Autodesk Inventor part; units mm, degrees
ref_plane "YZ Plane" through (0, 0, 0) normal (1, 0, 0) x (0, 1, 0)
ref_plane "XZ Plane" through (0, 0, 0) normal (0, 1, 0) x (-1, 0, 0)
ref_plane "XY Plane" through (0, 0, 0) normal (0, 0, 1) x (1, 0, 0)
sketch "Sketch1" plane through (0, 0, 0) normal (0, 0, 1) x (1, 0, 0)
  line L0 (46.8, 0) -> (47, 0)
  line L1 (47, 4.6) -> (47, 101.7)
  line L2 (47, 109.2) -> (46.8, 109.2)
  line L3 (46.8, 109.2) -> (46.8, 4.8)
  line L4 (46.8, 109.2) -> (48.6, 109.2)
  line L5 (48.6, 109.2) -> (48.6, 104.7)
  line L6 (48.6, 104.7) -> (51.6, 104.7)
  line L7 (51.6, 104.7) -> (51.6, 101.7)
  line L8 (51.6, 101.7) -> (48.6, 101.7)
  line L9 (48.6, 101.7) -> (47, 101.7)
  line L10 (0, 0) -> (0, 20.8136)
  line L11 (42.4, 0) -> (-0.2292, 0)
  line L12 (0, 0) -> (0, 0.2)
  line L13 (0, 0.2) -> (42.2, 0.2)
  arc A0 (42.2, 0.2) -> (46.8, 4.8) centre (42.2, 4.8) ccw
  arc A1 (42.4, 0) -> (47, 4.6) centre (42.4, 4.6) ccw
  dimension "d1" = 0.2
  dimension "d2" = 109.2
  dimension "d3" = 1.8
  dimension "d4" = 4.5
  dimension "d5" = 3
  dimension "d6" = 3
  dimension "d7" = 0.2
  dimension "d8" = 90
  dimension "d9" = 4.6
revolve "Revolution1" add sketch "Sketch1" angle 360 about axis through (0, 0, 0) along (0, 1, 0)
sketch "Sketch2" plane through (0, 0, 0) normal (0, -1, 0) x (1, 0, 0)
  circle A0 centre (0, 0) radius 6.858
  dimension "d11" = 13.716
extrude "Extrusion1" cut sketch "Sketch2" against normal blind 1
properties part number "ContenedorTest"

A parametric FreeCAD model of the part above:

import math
import FreeCAD as App
import Part
import Sketcher

V = App.Vector
Q = App.Units.Quantity

doc = App.newDocument("Part")
body = doc.addObject("PartDesign::Body", "Body")

sketch1 = body.newObject("Sketcher::SketchObject", "Sketch")
sketch1.AttachmentSupport = (doc.getObject("XY_Plane"), [""])
sketch1.MapMode = "FlatFace"
sketch1.addGeometry([
    Part.ArcOfCircle(Part.Circle(V(42.4, 4.6, 0), V(0, 0, 1), 4.6), math.radians(-90), math.radians(0)),
    Part.LineSegment(V(47, 4.6, 0), V(47, 101.7, 0)),
    Part.LineSegment(V(47, 101.7, 0), V(51.6, 101.7, 0)),
    Part.LineSegment(V(51.6, 101.7, 0), V(51.6, 104.7, 0)),
    Part.LineSegment(V(51.6, 104.7, 0), V(48.6, 104.7, 0)),
    Part.LineSegment(V(48.6, 104.7, 0), V(48.6, 109.2, 0)),
    Part.LineSegment(V(48.6, 109.2, 0), V(46.8, 109.2, 0)),
    Part.LineSegment(V(46.8, 109.2, 0), V(46.8, 4.8, 0)),
    Part.ArcOfCircle(Part.Circle(V(42.2, 4.8, 0), V(0, 0, 1), 4.6), math.radians(-90), math.radians(0)),
    Part.LineSegment(V(42.2, 0.2, 0), V(0, 0.2, 0)),
    Part.LineSegment(V(0, 0.2, 0), V(0, 0, 0)),
    Part.LineSegment(V(0, 0, 0), V(42.4, 0, 0)),
], False)
sketch1.addConstraint([
    Sketcher.Constraint("Tangent", 0, 2, 1, 1),
    Sketcher.Constraint("Coincident", 1, 2, 2, 1),
    Sketcher.Constraint("Coincident", 2, 2, 3, 1),
    Sketcher.Constraint("Coincident", 3, 2, 4, 1),
    Sketcher.Constraint("Coincident", 4, 2, 5, 1),
    Sketcher.Constraint("Coincident", 5, 2, 6, 1),
    Sketcher.Constraint("Coincident", 6, 2, 7, 1),
    Sketcher.Constraint("Tangent", 7, 2, 8, 2),
    Sketcher.Constraint("Tangent", 8, 1, 9, 1),
    Sketcher.Constraint("Coincident", 9, 2, 10, 1),
    Sketcher.Constraint("Coincident", 10, 2, 11, 1),
    Sketcher.Constraint("Tangent", 11, 2, 0, 1),
    Sketcher.Constraint("Vertical", 1),
    Sketcher.Constraint("Horizontal", 2),
    Sketcher.Constraint("Vertical", 3),
    Sketcher.Constraint("Horizontal", 4),
    Sketcher.Constraint("Vertical", 5),
    Sketcher.Constraint("Horizontal", 6),
    Sketcher.Constraint("Vertical", 7),
    Sketcher.Constraint("Horizontal", 9),
    Sketcher.Constraint("Vertical", 10),
    Sketcher.Constraint("Horizontal", 11),
    Sketcher.Constraint("Coincident", 10, 2, -1, 1),
    Sketcher.Constraint("Equal", 0, 8),
    Sketcher.Constraint("Equal", 4, 3),
    Sketcher.Constraint("Radius", 0, Q("4.6 mm")),
    Sketcher.Constraint("DistanceX", 4, 2, 4, 1, Q("3 mm")),
    Sketcher.Constraint("DistanceX", 2, 1, 2, 2, Q("4.6 mm")),
    Sketcher.Constraint("DistanceX", 6, 2, 6, 1, Q("1.8 mm")),
    Sketcher.Constraint("DistanceY", 5, 1, 5, 2, Q("4.5 mm")),
    Sketcher.Constraint("DistanceY", 10, 2, 10, 1, Q("0.2 mm")),
    Sketcher.Constraint("DistanceY", -1, 1, 5, 2, Q("109.2 mm")),
    Sketcher.Constraint("DistanceX", 9, 2, 9, 1, Q("42.2 mm")),
])
revolution = body.newObject("PartDesign::Revolution", "Revolution")
revolution.Profile = sketch1
revolution.ReferenceAxis = (sketch1, ["V_Axis"])
revolution.Angle = 360

sketch2 = body.newObject("Sketcher::SketchObject", "Sketch001")
sketch2.AttachmentSupport = (doc.getObject("XZ_Plane"), [""])
sketch2.MapMode = "FlatFace"
sketch2.addGeometry(Part.Circle(V(0, 0, 0), V(0, 0, 1), 7), False)
sketch2.addConstraint([
    Sketcher.Constraint("Coincident", 0, 3, -1, 1),
    Sketcher.Constraint("Diameter", 0, Q("13.716 mm")),
])
pocket1 = body.newObject("PartDesign::Pocket", "Pocket")
pocket1.Profile = sketch2
pocket1.Length = 1

doc.recompute()
